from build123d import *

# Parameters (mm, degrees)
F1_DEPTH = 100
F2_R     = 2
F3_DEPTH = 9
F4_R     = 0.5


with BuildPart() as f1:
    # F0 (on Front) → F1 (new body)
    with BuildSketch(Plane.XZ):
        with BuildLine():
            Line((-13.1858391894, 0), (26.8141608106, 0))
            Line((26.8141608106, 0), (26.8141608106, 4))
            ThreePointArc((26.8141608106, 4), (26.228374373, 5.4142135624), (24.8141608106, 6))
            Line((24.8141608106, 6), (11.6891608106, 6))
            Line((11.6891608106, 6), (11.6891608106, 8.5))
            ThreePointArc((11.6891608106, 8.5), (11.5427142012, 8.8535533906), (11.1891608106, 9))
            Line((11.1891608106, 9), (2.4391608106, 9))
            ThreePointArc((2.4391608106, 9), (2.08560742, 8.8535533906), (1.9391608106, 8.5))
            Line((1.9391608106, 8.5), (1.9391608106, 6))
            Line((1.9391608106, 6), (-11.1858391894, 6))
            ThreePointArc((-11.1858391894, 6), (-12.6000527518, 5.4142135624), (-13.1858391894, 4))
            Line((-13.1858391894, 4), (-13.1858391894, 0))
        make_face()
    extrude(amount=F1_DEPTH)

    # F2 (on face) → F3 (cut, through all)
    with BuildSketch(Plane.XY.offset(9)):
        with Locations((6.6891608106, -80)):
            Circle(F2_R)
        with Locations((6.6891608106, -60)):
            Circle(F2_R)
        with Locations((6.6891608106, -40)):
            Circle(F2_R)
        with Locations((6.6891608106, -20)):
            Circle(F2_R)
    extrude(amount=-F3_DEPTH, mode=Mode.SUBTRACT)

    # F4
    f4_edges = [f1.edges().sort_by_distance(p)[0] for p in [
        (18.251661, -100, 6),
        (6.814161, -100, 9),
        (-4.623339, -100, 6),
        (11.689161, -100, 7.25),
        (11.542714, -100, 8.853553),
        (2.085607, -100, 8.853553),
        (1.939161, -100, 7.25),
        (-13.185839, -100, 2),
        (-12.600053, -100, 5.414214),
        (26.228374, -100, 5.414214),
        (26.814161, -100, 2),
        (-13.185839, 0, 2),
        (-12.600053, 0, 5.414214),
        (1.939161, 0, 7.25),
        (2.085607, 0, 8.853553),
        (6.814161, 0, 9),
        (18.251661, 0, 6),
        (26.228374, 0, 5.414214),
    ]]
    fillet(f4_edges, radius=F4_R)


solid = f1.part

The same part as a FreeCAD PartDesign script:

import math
import FreeCAD as App
import Part
import Sketcher

V = App.Vector
Q = App.Units.Quantity


def edges_at(feature, points):
    """Names of the edges that pass closest to the given points."""
    edges = feature.Shape.Edges
    near = lambda p: min(range(len(edges)), key=lambda i: edges[i].distToShape(Part.Vertex(*p))[0])
    return sorted({f"Edge{near(p) + 1}" for p in points})

doc = App.newDocument("Part")
body = doc.addObject("PartDesign::Body", "Body")

sketch1 = doc.addObject("Sketcher::SketchObject", "Sketch")
body.addObject(sketch1)
sketch1.AttachmentSupport = (doc.XZ_Plane, [""])
sketch1.MapMode = "FlatFace"
sketch1.addGeometry(Part.LineSegment(V(-13.2, 0, 0), V(26.8, 0, 0)), False)
sketch1.addGeometry(Part.LineSegment(V(26.8, 0, 0), V(26.8, 4, 0)), False)
sketch1.addGeometry(Part.ArcOfCircle(Part.Circle(V(24.8, 4, 0), V(0, 0, 1), 2), math.radians(0), math.radians(90)), False)
sketch1.addGeometry(Part.LineSegment(V(24.8, 6, 0), V(11.7, 6, 0)), False)
sketch1.addGeometry(Part.LineSegment(V(11.7, 6, 0), V(11.7, 8.5, 0)), False)
sketch1.addGeometry(Part.ArcOfCircle(Part.Circle(V(11.2, 8.5, 0), V(0, 0, 1), 0.5), math.radians(0), math.radians(90)), False)
sketch1.addGeometry(Part.LineSegment(V(11.2, 9, 0), V(2.4, 9, 0)), False)
sketch1.addGeometry(Part.ArcOfCircle(Part.Circle(V(2.4, 8.5, 0), V(0, 0, 1), 0.5), math.radians(90), math.radians(180)), False)
sketch1.addGeometry(Part.LineSegment(V(1.9, 8.5, 0), V(1.9, 6, 0)), False)
sketch1.addGeometry(Part.LineSegment(V(1.9, 6, 0), V(-11.2, 6, 0)), False)
sketch1.addGeometry(Part.ArcOfCircle(Part.Circle(V(-11.2, 4, 0), V(0, 0, 1), 2), math.radians(90), math.radians(180)), False)
sketch1.addGeometry(Part.LineSegment(V(-13.2, 4, 0), V(-13.2, 0, 0)), False)
sketch1.addConstraint(Sketcher.Constraint("Coincident", 0, 2, 1, 1))
sketch1.addConstraint(Sketcher.Constraint("Tangent", 1, 2, 2, 1))
sketch1.addConstraint(Sketcher.Constraint("Tangent", 2, 2, 3, 1))
sketch1.addConstraint(Sketcher.Constraint("Coincident", 3, 2, 4, 1))
sketch1.addConstraint(Sketcher.Constraint("Tangent", 4, 2, 5, 1))
sketch1.addConstraint(Sketcher.Constraint("Tangent", 5, 2, 6, 1))
sketch1.addConstraint(Sketcher.Constraint("Tangent", 6, 2, 7, 1))
sketch1.addConstraint(Sketcher.Constraint("Tangent", 7, 2, 8, 1))
sketch1.addConstraint(Sketcher.Constraint("Coincident", 8, 2, 9, 1))
sketch1.addConstraint(Sketcher.Constraint("Tangent", 9, 2, 10, 1))
sketch1.addConstraint(Sketcher.Constraint("Tangent", 10, 2, 11, 1))
sketch1.addConstraint(Sketcher.Constraint("Coincident", 11, 2, 0, 1))
sketch1.addConstraint(Sketcher.Constraint("Horizontal", 0))
sketch1.addConstraint(Sketcher.Constraint("Vertical", 1))
sketch1.addConstraint(Sketcher.Constraint("Horizontal", 3))
sketch1.addConstraint(Sketcher.Constraint("Vertical", 4))
sketch1.addConstraint(Sketcher.Constraint("Horizontal", 6))
sketch1.addConstraint(Sketcher.Constraint("Vertical", 8))
sketch1.addConstraint(Sketcher.Constraint("Horizontal", 9))
sketch1.addConstraint(Sketcher.Constraint("Vertical", 11))
sketch1.addConstraint(Sketcher.Constraint("Equal", 5, 7))
sketch1.addConstraint(Sketcher.Constraint("Equal", 2, 10))
sketch1.addConstraint(Sketcher.Constraint("PointOnObject", 0, 2, -1))
sketch1.addConstraint(Sketcher.Constraint("Horizontal", 2, 3, 10, 3))
sketch1.addConstraint(Sketcher.Constraint("Equal", 3, 9))
sketch1.addConstraint(Sketcher.Constraint("Radius", 2, Q("2 mm")))
sketch1.addConstraint(Sketcher.Constraint("Radius", 5, Q("0.5 mm")))
sketch1.addConstraint(Sketcher.Constraint("DistanceX", 0, 1, 0, 2, Q("40 mm")))
sketch1.addConstraint(Sketcher.Constraint("DistanceY", 1, 1, 1, 2, Q("4 mm")))
sketch1.addConstraint(Sketcher.Constraint("DistanceY", 4, 1, 4, 2, Q("2.5 mm")))
sketch1.addConstraint(Sketcher.Constraint("DistanceX", 6, 2, 6, 1, Q("8.75 mm")))
sketch1.addConstraint(Sketcher.Constraint("DistanceX", -1, 1, 2, 3, Q("24.814161 mm")))
pad1 = doc.addObject("PartDesign::Pad", "Pad")
body.addObject(pad1)
pad1.Profile = sketch1
pad1.Length = 100

sketch2 = doc.addObject("Sketcher::SketchObject", "Sketch001")
body.addObject(sketch2)
sketch2.AttachmentSupport = (doc.XY_Plane, [""])
sketch2.MapMode = "FlatFace"
sketch2.AttachmentOffset = App.Placement(V(0, 0, 9), App.Rotation())
sketch2.addGeometry(Part.Circle(V(6.7, -80, 0), V(0, 0, 1), 2), False)
sketch2.addGeometry(Part.Circle(V(6.7, -60, 0), V(0, 0, 1), 2), False)
sketch2.addGeometry(Part.Circle(V(6.7, -40, 0), V(0, 0, 1), 2), False)
sketch2.addGeometry(Part.Circle(V(6.7, -20, 0), V(0, 0, 1), 2), False)
sketch2.addConstraint(Sketcher.Constraint("Equal", 0, 1))
sketch2.addConstraint(Sketcher.Constraint("Equal", 1, 2))
sketch2.addConstraint(Sketcher.Constraint("Equal", 2, 3))
sketch2.addConstraint(Sketcher.Constraint("Vertical", 0, 3, 1, 3))
sketch2.addConstraint(Sketcher.Constraint("Vertical", 1, 3, 2, 3))
sketch2.addConstraint(Sketcher.Constraint("Vertical", 2, 3, 3, 3))
sketch2.addConstraint(Sketcher.Constraint("Diameter", 0, Q("4 mm")))
sketch2.addConstraint(Sketcher.Constraint("DistanceY", 0, 3, -1, 1, Q("80 mm")))
sketch2.addConstraint(Sketcher.Constraint("DistanceY", 1, 3, -1, 1, Q("60 mm")))
sketch2.addConstraint(Sketcher.Constraint("DistanceY", 2, 3, -1, 1, Q("40 mm")))
sketch2.addConstraint(Sketcher.Constraint("DistanceY", 3, 3, -1, 1, Q("20 mm")))
sketch2.addConstraint(Sketcher.Constraint("DistanceX", -1, 1, 0, 3, Q("6.689161 mm")))
pocket1 = doc.addObject("PartDesign::Pocket", "Pocket")
body.addObject(pocket1)
pocket1.Profile = sketch2
pocket1.Type = "ThroughAll"
doc.recompute()

fillet = doc.addObject("PartDesign::Fillet", "Fillet")
body.addObject(fillet)
fillet.Base = (pocket1, edges_at(pocket1, [
    (18.252, -100, 6),
    (6.814, -100, 9),
    (-4.623, -100, 6),
    (11.689, -100, 7.25),
    (11.543, -100, 8.854),
    (2.086, -100, 8.854),
    (1.939, -100, 7.25),
    (-13.186, -100, 2),
    (-12.6, -100, 5.414),
    (26.228, -100, 5.414),
    (26.814, -100, 2),
    (-13.186, 0, 2),
    (-12.6, 0, 5.414),
    (1.939, 0, 7.25),
    (2.086, 0, 8.854),
    (6.814, 0, 9),
    (18.252, 0, 6),
    (26.228, 0, 5.414),
]))
fillet.Radius = 0.5

doc.recompute()
